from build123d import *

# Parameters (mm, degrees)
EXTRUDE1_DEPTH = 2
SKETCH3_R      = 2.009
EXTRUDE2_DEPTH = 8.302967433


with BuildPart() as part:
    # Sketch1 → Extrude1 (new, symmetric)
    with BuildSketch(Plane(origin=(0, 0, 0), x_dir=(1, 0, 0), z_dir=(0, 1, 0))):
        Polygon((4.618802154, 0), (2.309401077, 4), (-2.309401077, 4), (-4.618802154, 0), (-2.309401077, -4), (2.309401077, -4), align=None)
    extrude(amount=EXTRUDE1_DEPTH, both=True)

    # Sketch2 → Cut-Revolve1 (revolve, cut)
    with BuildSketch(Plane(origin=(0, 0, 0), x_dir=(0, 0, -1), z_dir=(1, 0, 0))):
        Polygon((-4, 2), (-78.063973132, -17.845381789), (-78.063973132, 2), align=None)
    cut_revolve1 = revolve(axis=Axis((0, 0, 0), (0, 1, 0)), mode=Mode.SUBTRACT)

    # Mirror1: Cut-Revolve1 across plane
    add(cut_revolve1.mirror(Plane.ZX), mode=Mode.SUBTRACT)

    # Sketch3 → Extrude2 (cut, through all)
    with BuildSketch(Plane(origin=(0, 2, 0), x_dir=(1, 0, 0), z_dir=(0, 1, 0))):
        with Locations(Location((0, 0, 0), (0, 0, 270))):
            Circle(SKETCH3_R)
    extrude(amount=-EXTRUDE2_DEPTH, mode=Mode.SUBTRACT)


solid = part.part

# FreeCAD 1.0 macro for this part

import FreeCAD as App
import Part
import Sketcher

V = App.Vector
Q = App.Units.Quantity

doc = App.newDocument("Part")
body = doc.addObject("PartDesign::Body", "Body")

sketch1 = doc.addObject("Sketcher::SketchObject", "Sketch")
body.addObject(sketch1)
sketch1.AttachmentSupport = (doc.XZ_Plane, [""])
sketch1.MapMode = "FlatFace"
sketch1.addGeometry(Part.LineSegment(V(4.6, 0, 0), V(2.3, -4, 0)), False)
sketch1.addGeometry(Part.LineSegment(V(2.3, -4, 0), V(-2.3, -4, 0)), False)
sketch1.addGeometry(Part.LineSegment(V(-2.3, -4, 0), V(-4.6, 0, 0)), False)
sketch1.addGeometry(Part.LineSegment(V(-4.6, 0, 0), V(-2.3, 4, 0)), False)
sketch1.addGeometry(Part.LineSegment(V(-2.3, 4, 0), V(2.3, 4, 0)), False)
sketch1.addGeometry(Part.LineSegment(V(2.3, 4, 0), V(4.6, 0, 0)), False)
sketch1.addConstraint(Sketcher.Constraint("Coincident", 0, 2, 1, 1))
sketch1.addConstraint(Sketcher.Constraint("Coincident", 1, 2, 2, 1))
sketch1.addConstraint(Sketcher.Constraint("Coincident", 2, 2, 3, 1))
sketch1.addConstraint(Sketcher.Constraint("Coincident", 3, 2, 4, 1))
sketch1.addConstraint(Sketcher.Constraint("Coincident", 4, 2, 5, 1))
sketch1.addConstraint(Sketcher.Constraint("Coincident", 5, 2, 0, 1))
sketch1.addConstraint(Sketcher.Constraint("Horizontal", 1))
sketch1.addConstraint(Sketcher.Constraint("Horizontal", 4))
sketch1.addConstraint(Sketcher.Constraint("Symmetric", 0, 2, 3, 2, -1, 1))
sketch1.addConstraint(Sketcher.Constraint("Symmetric", 2, 2, 5, 2, -1, 1))
sketch1.addConstraint(Sketcher.Constraint("PointOnObject", 2, 2, -1))
sketch1.addConstraint(Sketcher.Constraint("Parallel", 2, 5))
sketch1.addConstraint(Sketcher.Constraint("Vertical", 1, 2, 3, 2))
sketch1.addConstraint(Sketcher.Constraint("Angle", 0, Q("-120 deg")))
sketch1.addConstraint(Sketcher.Constraint("DistanceY", 0, 2, -1, 1, 4.0))
sketch1.addConstraint(Sketcher.Constraint("DistanceX", -1, 1, 0, 2, 2.309401))
pad1 = doc.addObject("PartDesign::Pad", "Pad")
body.addObject(pad1)
pad1.Profile = sketch1
pad1.Length = 4
pad1.Midplane = True

sketch2 = doc.addObject("Sketcher::SketchObject", "Sketch001")
body.addObject(sketch2)
sketch2.AttachmentSupport = (doc.YZ_Plane, [""])
sketch2.MapMode = "FlatFace"
sketch2.addGeometry(Part.LineSegment(V(-18, 78, 0), V(2, 4, 0)), False)
sketch2.addGeometry(Part.LineSegment(V(2, 4, 0), V(2, 78, 0)), False)
sketch2.addGeometry(Part.LineSegment(V(2, 78, 0), V(-18, 78, 0)), False)
sketch2.addConstraint(Sketcher.Constraint("Coincident", 0, 2, 1, 1))
sketch2.addConstraint(Sketcher.Constraint("Coincident", 1, 2, 2, 1))
sketch2.addConstraint(Sketcher.Constraint("Coincident", 2, 2, 0, 1))
sketch2.addConstraint(Sketcher.Constraint("Vertical", 1))
sketch2.addConstraint(Sketcher.Constraint("Horizontal", 2))
sketch2.addConstraint(Sketcher.Constraint("Angle", 0, Q("-75 deg")))
sketch2.addConstraint(Sketcher.Constraint("DistanceX", -1, 1, 0, 2, 2.0))
sketch2.addConstraint(Sketcher.Constraint("DistanceY", -1, 1, 0, 2, 4.0))
sketch2.addConstraint(Sketcher.Constraint("DistanceX", 2, 2, 2, 1, 19.845382))
groove = doc.addObject("PartDesign::Groove", "Groove")
body.addObject(groove)
groove.Profile = sketch2
groove.ReferenceAxis = (sketch2, ["H_Axis"])
groove.Angle = 360
doc.recompute()

mirrored = doc.addObject("PartDesign::Mirrored", "Mirrored")
body.addObject(mirrored)
mirrored.Originals = [groove]
mirrored.MirrorPlane = (doc.XZ_Plane, [""])
body.Tip = mirrored

sketch3 = doc.addObject("Sketcher::SketchObject", "Sketch002")
body.addObject(sketch3)
sketch3.AttachmentSupport = (doc.XZ_Plane, [""])
sketch3.MapMode = "FlatFace"
sketch3.AttachmentOffset = App.Placement(V(0, 0, -2), App.Rotation())
sketch3.addGeometry(Part.Circle(V(0, 0, 0), V(0, 0, 1), 2), False)
sketch3.addConstraint(Sketcher.Constraint("Coincident", 0, 3, -1, 1))
sketch3.addConstraint(Sketcher.Constraint("Diameter", 0, 4.018))
pocket1 = doc.addObject("PartDesign::Pocket", "Pocket")
body.addObject(pocket1)
pocket1.Profile = sketch3
pocket1.Type = "ThroughAll"
pocket1.Reversed = True

doc.recompute()
